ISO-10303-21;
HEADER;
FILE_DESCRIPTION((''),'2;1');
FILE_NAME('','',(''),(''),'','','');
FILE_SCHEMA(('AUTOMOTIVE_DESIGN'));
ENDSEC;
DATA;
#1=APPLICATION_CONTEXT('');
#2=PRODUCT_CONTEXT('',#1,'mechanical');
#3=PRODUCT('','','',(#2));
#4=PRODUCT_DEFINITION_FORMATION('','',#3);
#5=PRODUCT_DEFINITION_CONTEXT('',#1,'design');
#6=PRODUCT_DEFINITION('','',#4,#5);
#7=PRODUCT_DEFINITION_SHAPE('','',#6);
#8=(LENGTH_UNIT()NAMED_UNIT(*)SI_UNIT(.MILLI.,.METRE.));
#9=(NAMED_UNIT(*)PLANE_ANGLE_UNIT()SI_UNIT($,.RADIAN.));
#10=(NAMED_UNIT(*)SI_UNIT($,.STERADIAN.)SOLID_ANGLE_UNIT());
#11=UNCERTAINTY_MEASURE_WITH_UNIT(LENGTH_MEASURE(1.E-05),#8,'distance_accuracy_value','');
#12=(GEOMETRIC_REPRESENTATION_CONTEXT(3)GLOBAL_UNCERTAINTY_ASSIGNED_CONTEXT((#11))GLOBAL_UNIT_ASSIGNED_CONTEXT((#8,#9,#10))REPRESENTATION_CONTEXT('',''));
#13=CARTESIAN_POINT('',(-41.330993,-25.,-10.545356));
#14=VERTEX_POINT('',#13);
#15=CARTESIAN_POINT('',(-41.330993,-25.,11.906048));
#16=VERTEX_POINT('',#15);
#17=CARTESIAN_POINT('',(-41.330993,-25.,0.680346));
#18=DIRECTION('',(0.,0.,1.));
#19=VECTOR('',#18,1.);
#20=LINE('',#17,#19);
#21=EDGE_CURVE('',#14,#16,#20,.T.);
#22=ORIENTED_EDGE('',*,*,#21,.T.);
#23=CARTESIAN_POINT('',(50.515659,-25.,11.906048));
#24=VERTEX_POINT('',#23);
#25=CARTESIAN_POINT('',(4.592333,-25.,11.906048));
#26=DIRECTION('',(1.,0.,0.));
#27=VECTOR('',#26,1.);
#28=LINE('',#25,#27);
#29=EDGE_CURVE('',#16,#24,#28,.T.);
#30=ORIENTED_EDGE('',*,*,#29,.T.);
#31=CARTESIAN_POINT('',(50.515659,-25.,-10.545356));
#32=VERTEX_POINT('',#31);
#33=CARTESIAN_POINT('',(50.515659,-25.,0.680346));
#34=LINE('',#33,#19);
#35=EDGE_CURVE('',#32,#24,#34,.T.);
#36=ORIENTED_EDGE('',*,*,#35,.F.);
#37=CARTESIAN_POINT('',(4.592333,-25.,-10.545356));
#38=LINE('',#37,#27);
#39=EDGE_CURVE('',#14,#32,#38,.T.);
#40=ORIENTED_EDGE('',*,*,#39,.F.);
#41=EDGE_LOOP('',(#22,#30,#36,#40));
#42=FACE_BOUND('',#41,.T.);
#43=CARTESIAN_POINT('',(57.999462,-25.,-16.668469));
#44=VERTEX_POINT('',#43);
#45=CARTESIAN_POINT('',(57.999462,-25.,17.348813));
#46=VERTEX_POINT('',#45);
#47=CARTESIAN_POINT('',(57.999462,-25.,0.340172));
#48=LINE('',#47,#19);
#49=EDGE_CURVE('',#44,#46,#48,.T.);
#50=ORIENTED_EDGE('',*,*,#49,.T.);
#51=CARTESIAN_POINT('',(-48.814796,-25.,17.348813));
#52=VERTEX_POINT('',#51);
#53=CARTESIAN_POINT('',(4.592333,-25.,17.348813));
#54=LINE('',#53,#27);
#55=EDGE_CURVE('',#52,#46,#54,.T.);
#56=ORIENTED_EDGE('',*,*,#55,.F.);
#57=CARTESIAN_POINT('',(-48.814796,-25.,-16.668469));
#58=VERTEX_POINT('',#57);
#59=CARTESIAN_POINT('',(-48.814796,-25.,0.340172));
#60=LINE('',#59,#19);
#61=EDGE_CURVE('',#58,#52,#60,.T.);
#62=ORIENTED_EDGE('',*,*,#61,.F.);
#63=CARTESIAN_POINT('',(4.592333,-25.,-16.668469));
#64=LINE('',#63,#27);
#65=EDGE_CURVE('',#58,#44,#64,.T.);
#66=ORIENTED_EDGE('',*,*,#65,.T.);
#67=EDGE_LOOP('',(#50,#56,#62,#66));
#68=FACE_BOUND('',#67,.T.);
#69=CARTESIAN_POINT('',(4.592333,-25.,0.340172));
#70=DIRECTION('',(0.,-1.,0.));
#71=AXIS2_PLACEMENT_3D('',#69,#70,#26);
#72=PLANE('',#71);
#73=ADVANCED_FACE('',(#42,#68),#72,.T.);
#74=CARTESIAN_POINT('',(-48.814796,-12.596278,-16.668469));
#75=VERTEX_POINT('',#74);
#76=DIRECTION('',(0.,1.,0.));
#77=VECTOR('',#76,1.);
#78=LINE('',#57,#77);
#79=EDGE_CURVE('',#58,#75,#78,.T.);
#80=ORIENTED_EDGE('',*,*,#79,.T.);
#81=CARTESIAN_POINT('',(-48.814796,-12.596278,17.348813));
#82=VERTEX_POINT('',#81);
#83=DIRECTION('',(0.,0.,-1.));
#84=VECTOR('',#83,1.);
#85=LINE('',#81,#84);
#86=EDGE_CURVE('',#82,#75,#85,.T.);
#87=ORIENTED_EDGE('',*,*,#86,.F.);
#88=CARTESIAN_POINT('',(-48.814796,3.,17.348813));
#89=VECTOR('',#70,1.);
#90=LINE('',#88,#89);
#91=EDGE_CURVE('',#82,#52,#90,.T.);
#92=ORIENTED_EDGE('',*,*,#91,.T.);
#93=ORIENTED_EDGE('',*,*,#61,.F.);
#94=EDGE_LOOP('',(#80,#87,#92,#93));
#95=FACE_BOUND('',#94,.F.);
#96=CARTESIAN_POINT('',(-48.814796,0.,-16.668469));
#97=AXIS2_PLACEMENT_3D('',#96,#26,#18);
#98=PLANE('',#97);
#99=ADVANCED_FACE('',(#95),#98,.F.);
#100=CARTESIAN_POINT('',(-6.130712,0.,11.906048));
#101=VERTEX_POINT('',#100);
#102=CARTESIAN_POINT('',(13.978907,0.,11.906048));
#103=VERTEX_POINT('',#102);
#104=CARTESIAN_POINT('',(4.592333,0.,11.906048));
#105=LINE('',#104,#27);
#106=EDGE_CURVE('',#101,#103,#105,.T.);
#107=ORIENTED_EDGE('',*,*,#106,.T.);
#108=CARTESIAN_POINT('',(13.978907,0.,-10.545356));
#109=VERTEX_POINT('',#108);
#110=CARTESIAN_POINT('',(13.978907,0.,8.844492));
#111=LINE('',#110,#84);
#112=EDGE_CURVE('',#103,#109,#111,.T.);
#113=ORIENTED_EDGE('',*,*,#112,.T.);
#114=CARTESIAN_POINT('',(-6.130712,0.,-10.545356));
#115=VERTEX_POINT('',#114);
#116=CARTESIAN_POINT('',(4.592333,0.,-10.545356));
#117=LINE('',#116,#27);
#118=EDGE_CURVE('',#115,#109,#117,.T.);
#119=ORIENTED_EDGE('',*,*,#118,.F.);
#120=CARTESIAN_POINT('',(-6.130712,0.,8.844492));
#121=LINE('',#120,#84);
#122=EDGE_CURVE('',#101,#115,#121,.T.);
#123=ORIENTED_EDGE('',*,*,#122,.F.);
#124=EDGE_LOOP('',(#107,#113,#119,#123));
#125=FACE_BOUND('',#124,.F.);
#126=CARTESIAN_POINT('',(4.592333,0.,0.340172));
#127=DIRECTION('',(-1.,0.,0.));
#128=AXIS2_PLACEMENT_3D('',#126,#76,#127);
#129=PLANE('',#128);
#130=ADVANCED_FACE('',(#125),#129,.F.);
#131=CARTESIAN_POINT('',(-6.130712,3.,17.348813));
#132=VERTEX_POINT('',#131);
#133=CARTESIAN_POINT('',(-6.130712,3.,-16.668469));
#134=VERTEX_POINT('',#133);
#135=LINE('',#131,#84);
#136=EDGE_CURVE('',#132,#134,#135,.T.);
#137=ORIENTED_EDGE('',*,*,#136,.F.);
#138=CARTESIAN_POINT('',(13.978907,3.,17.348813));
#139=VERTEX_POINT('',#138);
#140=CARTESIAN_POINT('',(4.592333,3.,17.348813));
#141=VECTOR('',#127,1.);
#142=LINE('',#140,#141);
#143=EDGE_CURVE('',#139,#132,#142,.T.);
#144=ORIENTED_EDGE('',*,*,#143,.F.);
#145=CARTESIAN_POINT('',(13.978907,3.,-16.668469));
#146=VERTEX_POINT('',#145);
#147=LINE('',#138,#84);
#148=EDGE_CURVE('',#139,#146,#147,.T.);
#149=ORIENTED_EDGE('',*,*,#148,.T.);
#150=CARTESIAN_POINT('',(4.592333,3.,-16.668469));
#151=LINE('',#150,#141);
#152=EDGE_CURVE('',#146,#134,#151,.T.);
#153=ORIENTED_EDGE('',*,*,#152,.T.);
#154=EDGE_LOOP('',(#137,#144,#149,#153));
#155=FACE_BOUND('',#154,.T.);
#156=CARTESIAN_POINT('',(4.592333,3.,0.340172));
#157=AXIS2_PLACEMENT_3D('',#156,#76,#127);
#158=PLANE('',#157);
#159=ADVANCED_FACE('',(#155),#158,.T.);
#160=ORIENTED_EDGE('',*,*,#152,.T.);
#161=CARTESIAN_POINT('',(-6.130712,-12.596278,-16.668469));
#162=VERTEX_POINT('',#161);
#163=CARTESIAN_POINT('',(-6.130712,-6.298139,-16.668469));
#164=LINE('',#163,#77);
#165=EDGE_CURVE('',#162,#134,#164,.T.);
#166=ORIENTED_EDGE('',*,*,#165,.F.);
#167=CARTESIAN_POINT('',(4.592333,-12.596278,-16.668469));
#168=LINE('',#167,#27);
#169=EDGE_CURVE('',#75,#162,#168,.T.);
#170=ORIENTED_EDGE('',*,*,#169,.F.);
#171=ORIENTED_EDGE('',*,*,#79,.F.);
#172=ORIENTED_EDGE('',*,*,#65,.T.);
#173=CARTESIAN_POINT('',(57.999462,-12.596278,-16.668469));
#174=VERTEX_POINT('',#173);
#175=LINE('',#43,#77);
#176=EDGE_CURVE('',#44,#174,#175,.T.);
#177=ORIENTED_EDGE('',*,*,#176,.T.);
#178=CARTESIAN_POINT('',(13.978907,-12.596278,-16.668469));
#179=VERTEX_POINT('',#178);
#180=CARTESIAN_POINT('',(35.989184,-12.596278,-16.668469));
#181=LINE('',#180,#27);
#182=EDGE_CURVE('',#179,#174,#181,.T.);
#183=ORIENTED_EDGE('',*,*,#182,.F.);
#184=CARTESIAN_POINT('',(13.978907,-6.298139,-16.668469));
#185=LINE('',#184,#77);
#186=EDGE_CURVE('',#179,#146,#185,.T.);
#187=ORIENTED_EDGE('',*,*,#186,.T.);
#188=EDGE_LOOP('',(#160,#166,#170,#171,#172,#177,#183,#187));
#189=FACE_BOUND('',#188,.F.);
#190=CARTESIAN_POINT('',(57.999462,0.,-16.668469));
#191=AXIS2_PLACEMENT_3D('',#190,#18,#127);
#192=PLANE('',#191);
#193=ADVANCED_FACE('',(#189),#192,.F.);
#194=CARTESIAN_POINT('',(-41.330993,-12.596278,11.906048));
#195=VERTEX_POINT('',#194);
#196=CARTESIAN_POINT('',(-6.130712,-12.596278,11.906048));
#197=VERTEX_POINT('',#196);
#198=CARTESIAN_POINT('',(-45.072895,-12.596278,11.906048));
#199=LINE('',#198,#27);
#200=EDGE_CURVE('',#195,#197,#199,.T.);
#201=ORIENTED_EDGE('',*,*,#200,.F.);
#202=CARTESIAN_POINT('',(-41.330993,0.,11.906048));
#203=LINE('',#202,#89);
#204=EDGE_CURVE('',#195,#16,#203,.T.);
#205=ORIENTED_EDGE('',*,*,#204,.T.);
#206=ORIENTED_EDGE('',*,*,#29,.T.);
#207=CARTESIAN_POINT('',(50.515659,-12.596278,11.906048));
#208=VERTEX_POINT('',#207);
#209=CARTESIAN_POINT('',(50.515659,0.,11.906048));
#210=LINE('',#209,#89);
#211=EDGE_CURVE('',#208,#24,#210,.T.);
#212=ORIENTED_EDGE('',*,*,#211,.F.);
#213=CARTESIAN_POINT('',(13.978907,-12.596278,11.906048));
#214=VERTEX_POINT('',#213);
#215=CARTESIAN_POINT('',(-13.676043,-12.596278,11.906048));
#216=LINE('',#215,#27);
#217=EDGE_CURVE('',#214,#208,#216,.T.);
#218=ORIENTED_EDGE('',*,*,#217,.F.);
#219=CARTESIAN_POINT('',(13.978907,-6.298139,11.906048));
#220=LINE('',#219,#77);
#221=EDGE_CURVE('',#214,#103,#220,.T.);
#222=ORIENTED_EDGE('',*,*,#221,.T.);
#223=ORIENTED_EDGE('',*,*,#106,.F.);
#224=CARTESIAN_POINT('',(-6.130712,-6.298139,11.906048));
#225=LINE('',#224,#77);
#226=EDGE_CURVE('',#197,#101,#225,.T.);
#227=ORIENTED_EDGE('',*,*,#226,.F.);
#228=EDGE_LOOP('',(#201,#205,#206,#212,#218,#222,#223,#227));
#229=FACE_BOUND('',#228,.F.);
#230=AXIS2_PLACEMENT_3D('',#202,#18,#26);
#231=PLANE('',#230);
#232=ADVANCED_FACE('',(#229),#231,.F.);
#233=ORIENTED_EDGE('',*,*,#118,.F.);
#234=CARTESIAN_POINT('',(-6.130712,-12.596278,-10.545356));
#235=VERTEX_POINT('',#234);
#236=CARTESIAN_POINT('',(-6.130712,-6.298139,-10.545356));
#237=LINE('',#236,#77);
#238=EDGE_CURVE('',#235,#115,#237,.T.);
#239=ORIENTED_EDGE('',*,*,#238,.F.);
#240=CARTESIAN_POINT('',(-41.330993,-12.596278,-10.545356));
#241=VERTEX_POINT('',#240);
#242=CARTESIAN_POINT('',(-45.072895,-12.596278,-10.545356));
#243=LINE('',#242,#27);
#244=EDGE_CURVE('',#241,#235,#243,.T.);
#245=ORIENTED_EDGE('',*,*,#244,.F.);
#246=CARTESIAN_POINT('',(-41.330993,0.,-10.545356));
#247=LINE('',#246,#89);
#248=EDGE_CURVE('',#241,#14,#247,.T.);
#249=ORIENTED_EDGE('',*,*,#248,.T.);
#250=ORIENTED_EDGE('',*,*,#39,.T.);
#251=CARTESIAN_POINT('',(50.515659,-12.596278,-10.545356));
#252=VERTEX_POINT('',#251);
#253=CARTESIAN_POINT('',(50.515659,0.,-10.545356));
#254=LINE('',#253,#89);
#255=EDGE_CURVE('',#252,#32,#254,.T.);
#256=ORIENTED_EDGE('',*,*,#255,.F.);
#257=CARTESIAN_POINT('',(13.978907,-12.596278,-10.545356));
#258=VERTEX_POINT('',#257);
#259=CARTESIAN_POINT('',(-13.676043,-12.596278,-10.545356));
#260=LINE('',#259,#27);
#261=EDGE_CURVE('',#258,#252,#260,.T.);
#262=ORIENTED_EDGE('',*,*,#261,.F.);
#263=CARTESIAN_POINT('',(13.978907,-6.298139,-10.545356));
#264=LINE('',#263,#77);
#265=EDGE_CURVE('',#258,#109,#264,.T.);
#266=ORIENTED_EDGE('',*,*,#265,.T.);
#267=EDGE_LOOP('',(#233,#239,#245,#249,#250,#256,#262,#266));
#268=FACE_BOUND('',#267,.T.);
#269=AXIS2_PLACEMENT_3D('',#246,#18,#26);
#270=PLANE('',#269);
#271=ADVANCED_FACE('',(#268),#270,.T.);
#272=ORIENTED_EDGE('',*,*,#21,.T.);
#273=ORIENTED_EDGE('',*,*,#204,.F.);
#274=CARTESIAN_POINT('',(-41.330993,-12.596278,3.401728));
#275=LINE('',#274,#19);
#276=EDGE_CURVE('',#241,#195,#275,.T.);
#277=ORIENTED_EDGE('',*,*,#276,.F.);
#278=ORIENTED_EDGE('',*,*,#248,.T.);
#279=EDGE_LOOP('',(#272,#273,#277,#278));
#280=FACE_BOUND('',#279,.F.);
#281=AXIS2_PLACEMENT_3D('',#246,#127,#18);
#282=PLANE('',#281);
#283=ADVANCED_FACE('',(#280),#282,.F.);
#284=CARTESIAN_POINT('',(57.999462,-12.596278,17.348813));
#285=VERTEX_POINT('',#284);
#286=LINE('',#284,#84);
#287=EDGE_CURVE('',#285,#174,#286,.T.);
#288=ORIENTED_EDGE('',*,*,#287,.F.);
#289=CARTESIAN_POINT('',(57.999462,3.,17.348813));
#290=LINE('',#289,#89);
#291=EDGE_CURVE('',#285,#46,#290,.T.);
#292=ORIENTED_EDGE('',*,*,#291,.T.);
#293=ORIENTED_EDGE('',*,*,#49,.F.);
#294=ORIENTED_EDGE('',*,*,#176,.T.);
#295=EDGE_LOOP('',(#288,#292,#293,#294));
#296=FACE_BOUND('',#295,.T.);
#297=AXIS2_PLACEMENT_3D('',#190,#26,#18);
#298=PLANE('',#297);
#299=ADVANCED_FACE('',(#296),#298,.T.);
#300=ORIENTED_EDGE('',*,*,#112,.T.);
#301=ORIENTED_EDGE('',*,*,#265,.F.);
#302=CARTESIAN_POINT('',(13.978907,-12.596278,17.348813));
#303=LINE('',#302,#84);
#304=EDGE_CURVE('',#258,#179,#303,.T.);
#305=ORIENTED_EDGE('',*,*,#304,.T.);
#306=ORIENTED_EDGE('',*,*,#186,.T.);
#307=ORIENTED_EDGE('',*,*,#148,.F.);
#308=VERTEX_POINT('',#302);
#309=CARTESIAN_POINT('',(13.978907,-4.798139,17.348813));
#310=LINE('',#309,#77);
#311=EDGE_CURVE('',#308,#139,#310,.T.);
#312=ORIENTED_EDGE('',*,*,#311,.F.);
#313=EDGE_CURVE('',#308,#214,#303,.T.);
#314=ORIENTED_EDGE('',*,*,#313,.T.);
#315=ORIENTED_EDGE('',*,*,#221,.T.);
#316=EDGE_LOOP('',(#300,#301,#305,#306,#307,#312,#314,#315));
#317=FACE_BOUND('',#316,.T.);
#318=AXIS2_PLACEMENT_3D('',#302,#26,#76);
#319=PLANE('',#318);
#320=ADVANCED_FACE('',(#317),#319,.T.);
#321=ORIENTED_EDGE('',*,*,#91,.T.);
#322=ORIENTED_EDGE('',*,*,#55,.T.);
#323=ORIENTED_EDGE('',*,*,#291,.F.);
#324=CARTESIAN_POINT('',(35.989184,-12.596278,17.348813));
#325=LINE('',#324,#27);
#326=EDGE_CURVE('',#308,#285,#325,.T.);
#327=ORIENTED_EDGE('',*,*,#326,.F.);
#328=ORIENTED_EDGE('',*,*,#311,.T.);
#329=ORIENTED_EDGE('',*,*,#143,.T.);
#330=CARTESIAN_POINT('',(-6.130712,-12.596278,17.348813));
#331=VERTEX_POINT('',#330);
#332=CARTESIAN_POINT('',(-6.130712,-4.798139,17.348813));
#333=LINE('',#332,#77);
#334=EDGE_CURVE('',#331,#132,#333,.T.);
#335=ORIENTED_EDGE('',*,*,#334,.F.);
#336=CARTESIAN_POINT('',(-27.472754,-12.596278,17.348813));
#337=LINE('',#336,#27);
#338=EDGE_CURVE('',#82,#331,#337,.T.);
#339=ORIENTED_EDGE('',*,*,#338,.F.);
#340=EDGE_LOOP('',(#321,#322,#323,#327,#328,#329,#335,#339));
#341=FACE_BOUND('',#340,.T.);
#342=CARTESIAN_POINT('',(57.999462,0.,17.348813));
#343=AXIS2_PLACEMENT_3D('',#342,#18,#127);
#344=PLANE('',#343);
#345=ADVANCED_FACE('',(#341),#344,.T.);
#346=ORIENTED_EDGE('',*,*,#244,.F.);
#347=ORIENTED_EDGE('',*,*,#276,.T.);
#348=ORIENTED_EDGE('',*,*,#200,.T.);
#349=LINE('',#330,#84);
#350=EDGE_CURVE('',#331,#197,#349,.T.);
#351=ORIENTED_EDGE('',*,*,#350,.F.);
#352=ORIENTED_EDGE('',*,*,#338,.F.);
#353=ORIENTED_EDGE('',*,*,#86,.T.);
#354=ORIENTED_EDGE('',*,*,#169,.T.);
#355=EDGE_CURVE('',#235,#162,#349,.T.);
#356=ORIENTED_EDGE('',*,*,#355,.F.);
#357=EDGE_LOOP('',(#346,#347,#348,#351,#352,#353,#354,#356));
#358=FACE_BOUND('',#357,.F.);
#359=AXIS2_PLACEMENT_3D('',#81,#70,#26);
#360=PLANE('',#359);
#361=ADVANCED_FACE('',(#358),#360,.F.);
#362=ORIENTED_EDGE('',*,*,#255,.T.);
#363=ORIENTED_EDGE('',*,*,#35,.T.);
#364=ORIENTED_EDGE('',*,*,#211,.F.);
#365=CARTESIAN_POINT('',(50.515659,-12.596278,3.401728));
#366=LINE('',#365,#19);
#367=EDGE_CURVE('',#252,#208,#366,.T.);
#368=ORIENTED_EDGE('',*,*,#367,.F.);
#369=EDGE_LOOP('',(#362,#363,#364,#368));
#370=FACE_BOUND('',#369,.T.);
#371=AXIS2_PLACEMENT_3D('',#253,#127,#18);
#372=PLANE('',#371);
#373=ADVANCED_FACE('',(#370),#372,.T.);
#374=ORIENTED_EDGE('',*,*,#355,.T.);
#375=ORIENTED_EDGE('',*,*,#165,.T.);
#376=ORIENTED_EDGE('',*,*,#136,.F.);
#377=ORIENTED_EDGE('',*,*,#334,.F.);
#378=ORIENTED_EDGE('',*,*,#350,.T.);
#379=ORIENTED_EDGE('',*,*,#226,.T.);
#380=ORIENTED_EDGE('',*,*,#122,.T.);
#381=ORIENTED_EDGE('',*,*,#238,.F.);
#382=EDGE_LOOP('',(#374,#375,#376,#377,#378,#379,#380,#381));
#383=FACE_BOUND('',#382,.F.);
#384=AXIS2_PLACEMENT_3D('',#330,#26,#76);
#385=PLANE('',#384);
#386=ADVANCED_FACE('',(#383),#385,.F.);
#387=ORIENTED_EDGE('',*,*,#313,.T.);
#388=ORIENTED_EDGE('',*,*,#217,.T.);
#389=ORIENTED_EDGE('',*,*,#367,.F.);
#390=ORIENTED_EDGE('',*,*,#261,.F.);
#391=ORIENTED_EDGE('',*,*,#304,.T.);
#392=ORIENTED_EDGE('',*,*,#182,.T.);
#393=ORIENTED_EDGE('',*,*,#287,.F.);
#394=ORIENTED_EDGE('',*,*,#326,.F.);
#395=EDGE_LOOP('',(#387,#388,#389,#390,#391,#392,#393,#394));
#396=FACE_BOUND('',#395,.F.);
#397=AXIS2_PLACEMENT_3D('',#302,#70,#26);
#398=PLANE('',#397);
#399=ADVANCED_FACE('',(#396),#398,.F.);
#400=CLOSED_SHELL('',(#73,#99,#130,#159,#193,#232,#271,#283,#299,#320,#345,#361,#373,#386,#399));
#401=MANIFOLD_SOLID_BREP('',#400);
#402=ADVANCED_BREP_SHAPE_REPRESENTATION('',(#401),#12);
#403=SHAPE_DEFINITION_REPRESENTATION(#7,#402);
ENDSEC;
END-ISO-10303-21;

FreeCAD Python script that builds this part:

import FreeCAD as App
import Part
import Sketcher


def add_polygon(sketch, points):
    """Adds a closed chain of lines whose ends are joined by coincident constraints."""
    first, n = sketch.GeometryCount, len(points)
    for a, b in zip(points, points[1:] + points[:1]):
        sketch.addGeometry(Part.LineSegment(App.Vector(*a, 0), App.Vector(*b, 0)), False)
    for i in range(n):
        sketch.addConstraint(Sketcher.Constraint("Coincident", first + i, 2, first + (i + 1) % n, 1))

doc = App.newDocument("Part")
body = doc.addObject("PartDesign::Body", "Body")

# Sketch on XZ plane
sketch1 = doc.addObject("Sketcher::SketchObject", "Sketch")
body.addObject(sketch1)
sketch1.AttachmentSupport = (doc.XZ_Plane, [""])
sketch1.MapMode = "FlatFace"
add_polygon(sketch1, [(-48.814796, 17.348813), (-48.814796, -16.668469), (57.999462, -16.668469), (57.999462, 17.348813)])  # lines 0-3
add_polygon(sketch1, [(50.515659, -10.545356), (-41.330993, -10.545356), (-41.330993, 11.906048), (50.515659, 11.906048)])  # lines 4-7
sketch1.addConstraint(Sketcher.Constraint("Vertical", 0))
sketch1.addConstraint(Sketcher.Constraint("Horizontal", 1))
sketch1.addConstraint(Sketcher.Constraint("Vertical", 2))
sketch1.addConstraint(Sketcher.Constraint("Horizontal", 3))
sketch1.addConstraint(Sketcher.Constraint("Horizontal", 4))
sketch1.addConstraint(Sketcher.Constraint("Vertical", 5))
sketch1.addConstraint(Sketcher.Constraint("Horizontal", 6))
sketch1.addConstraint(Sketcher.Constraint("Vertical", 7))
sketch1.addConstraint(Sketcher.Constraint("DistanceY", 0, 2, 0, 1, 34.017282))
sketch1.addConstraint(Sketcher.Constraint("DistanceX", 1, 1, 1, 2, 106.814258))
sketch1.addConstraint(Sketcher.Constraint("DistanceX", 4, 2, 4, 1, 91.846652))
sketch1.addConstraint(Sketcher.Constraint("DistanceY", 5, 1, 5, 2, 22.451404))
sketch1.addConstraint(Sketcher.Constraint("DistanceY", 0, 2, -1, 1, 16.668469))
sketch1.addConstraint(Sketcher.Constraint("DistanceX", -1, 1, 1, 2, 57.999462))
sketch1.addConstraint(Sketcher.Constraint("DistanceY", -1, 1, 5, 2, 11.906048))
sketch1.addConstraint(Sketcher.Constraint("DistanceX", -1, 1, 6, 2, 50.515659))
pad1 = doc.addObject("PartDesign::Pad", "Pad")
body.addObject(pad1)
pad1.Profile = sketch1
pad1.Length = 25

# Sketch on XZ plane
sketch2 = doc.addObject("Sketcher::SketchObject", "Sketch001")
body.addObject(sketch2)
sketch2.AttachmentSupport = (doc.XZ_Plane, [""])
sketch2.MapMode = "FlatFace"
add_polygon(sketch2, [(57.999462, 17.348813), (57.999462, -16.668469), (-48.814796, -16.668469), (-48.814796, 17.348813)])  # lines 0-3
sketch2.addConstraint(Sketcher.Constraint("Vertical", 0))
sketch2.addConstraint(Sketcher.Constraint("Horizontal", 1))
sketch2.addConstraint(Sketcher.Constraint("Vertical", 2))
sketch2.addConstraint(Sketcher.Constraint("Horizontal", 3))
sketch2.addConstraint(Sketcher.Constraint("DistanceY", 0, 2, 0, 1, 34.017282))
sketch2.addConstraint(Sketcher.Constraint("DistanceX", 1, 2, 1, 1, 106.814258))
sketch2.addConstraint(Sketcher.Constraint("DistanceX", -1, 1, 0, 2, 57.999462))
sketch2.addConstraint(Sketcher.Constraint("DistanceY", 0, 2, -1, 1, 16.668469))
pad2 = doc.addObject("PartDesign::Pad", "Pad001")
body.addObject(pad2)
pad2.Profile = sketch2
pad2.Length = 3
pad2.Reversed = True

# Sketch on XY plane
sketch3 = doc.addObject("Sketcher::SketchObject", "Sketch002")
body.addObject(sketch3)
sketch3.AttachmentSupport = (doc.XY_Plane, [""])
sketch3.MapMode = "FlatFace"
sketch3.AttachmentOffset = App.Placement(App.Vector(0, 0, 17.348813), App.Rotation())
add_polygon(sketch3, [(-48.814796, 3), (-48.814796, -12.596278), (-6.130712, -12.596278), (-6.130712, 3)])  # lines 0-3
add_polygon(sketch3, [(13.978907, 3), (13.978907, -12.596278), (57.999462, -12.596278), (57.999462, 3)])  # lines 4-7
sketch3.addConstraint(Sketcher.Constraint("Vertical", 0))
sketch3.addConstraint(Sketcher.Constraint("Horizontal", 1))
sketch3.addConstraint(Sketcher.Constraint("Vertical", 2))
sketch3.addConstraint(Sketcher.Constraint("Horizontal", 3))
sketch3.addConstraint(Sketcher.Constraint("Vertical", 4))
sketch3.addConstraint(Sketcher.Constraint("Horizontal", 5))
sketch3.addConstraint(Sketcher.Constraint("Vertical", 6))
sketch3.addConstraint(Sketcher.Constraint("Horizontal", 7))
sketch3.addConstraint(Sketcher.Constraint("Horizontal", 1, 2, 4, 2))
sketch3.addConstraint(Sketcher.Constraint("Horizontal", 3, 2, 6, 2))
sketch3.addConstraint(Sketcher.Constraint("DistanceY", -1, 1, 2, 2, 3.0))
sketch3.addConstraint(Sketcher.Constraint("DistanceX", 1, 1, 1, 2, 42.684084))
sketch3.addConstraint(Sketcher.Constraint("DistanceX", 5, 1, 5, 2, 44.020555))
sketch3.addConstraint(Sketcher.Constraint("DistanceY", 0, 2, 0, 1, 15.596278))
sketch3.addConstraint(Sketcher.Constraint("DistanceX", 1, 2, -1, 1, 6.130712))
sketch3.addConstraint(Sketcher.Constraint("DistanceX", -1, 1, 5, 2, 57.999462))
pocket1 = doc.addObject("PartDesign::Pocket", "Pocket")
body.addObject(pocket1)
pocket1.Profile = sketch3
pocket1.Length = 42.7

doc.recompute()
